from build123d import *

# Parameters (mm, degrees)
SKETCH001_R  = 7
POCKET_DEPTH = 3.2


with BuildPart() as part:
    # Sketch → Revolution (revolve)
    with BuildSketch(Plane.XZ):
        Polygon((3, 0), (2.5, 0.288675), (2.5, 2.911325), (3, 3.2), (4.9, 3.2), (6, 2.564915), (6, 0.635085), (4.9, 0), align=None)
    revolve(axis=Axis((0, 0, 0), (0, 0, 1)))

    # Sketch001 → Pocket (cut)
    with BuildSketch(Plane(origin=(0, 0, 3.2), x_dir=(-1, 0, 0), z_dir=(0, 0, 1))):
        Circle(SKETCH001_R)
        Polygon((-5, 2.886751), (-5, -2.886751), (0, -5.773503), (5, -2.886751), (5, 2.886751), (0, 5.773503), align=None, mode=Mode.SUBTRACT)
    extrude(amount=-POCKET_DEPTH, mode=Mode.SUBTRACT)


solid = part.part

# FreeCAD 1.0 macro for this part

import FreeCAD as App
import Part
import Sketcher
Q = App.Units.Quantity

doc = App.newDocument("Part")
body = doc.addObject("PartDesign::Body", "Body")

# Sketch on XZ plane
sketch1 = body.newObject("Sketcher::SketchObject", "Sketch")
sketch1.AttachmentSupport = (doc.getObject("XZ_Plane"), [""])
sketch1.MapMode = "FlatFace"
sketch1.addGeometry([
    Part.LineSegment(App.Vector(2.5, 0.3, 0), App.Vector(3, 0, 0)),  # 0
    Part.LineSegment(App.Vector(3, 0, 0), App.Vector(4.9, 0, 0)),  # 1
    Part.LineSegment(App.Vector(4.9, 0, 0), App.Vector(6, 0.6, 0)),  # 2
    Part.LineSegment(App.Vector(6, 0.6, 0), App.Vector(6, 2.6, 0)),  # 3
    Part.LineSegment(App.Vector(6, 2.6, 0), App.Vector(4.9, 3.2, 0)),  # 4
    Part.LineSegment(App.Vector(4.9, 3.2, 0), App.Vector(3, 3.2, 0)),  # 5
    Part.LineSegment(App.Vector(3, 3.2, 0), App.Vector(2.5, 2.9, 0)),  # 6
    Part.LineSegment(App.Vector(2.5, 2.9, 0), App.Vector(2.5, 0.3, 0)),  # 7
], False)
sketch1.addConstraint([
    Sketcher.Constraint("Coincident", 0, 2, 1, 1),
    Sketcher.Constraint("Coincident", 1, 2, 2, 1),
    Sketcher.Constraint("Coincident", 2, 2, 3, 1),
    Sketcher.Constraint("Coincident", 3, 2, 4, 1),
    Sketcher.Constraint("Coincident", 4, 2, 5, 1),
    Sketcher.Constraint("Coincident", 5, 2, 6, 1),
    Sketcher.Constraint("Coincident", 6, 2, 7, 1),
    Sketcher.Constraint("Coincident", 7, 2, 0, 1),
    Sketcher.Constraint("Horizontal", 1),
    Sketcher.Constraint("Vertical", 3),
    Sketcher.Constraint("Horizontal", 5),
    Sketcher.Constraint("Vertical", 7),
    Sketcher.Constraint("PointOnObject", 0, 2, -1),
    Sketcher.Constraint("Parallel", 0, 4),
    Sketcher.Constraint("Parallel", 2, 6),
    Sketcher.Constraint("Vertical", 1, 2, 4, 2),
    Sketcher.Constraint("Vertical", 0, 2, 5, 2),
    Sketcher.Constraint("Equal", 2, 4),
    Sketcher.Constraint("Angle", 0, Q("-29.999988 deg")),
    Sketcher.Constraint("DistanceX", 1, 1, 1, 2, Q("1.9 mm")),
    Sketcher.Constraint("DistanceX", -1, 1, 0, 2, Q("3 mm")),
    Sketcher.Constraint("DistanceX", -1, 1, 2, 2, Q("6 mm")),
    Sketcher.Constraint("DistanceY", -1, 1, 4, 2, Q("3.2 mm")),
    Sketcher.Constraint("DistanceX", -1, 1, 6, 2, Q("2.5 mm")),
])
revolution = body.newObject("PartDesign::Revolution", "Revolution")
revolution.Profile = sketch1
revolution.ReferenceAxis = (sketch1, ["V_Axis"])
revolution.Angle = 360

# Sketch on XY plane
sketch2 = body.newObject("Sketcher::SketchObject", "Sketch001")
sketch2.AttachmentSupport = (doc.getObject("XY_Plane"), [""])
sketch2.MapMode = "FlatFace"
sketch2.AttachmentOffset = App.Placement(App.Vector(0, 0, 3.2), App.Rotation())
sketch2.addGeometry([
    Part.Circle(App.Vector(0, 0, 0), App.Vector(0, 0, 1), 7),  # 0
    Part.LineSegment(App.Vector(5, 3, 0), App.Vector(5, -3, 0)),  # 1
    Part.LineSegment(App.Vector(5, -3, 0), App.Vector(0, -6, 0)),  # 2
    Part.LineSegment(App.Vector(0, -6, 0), App.Vector(-5, -3, 0)),  # 3
    Part.LineSegment(App.Vector(-5, -3, 0), App.Vector(-5, 3, 0)),  # 4
    Part.LineSegment(App.Vector(-5, 3, 0), App.Vector(0, 6, 0)),  # 5
    Part.LineSegment(App.Vector(0, 6, 0), App.Vector(5, 3, 0)),  # 6
], False)
sketch2.addConstraint([
    Sketcher.Constraint("Coincident", 1, 2, 2, 1),
    Sketcher.Constraint("Coincident", 2, 2, 3, 1),
    Sketcher.Constraint("Coincident", 3, 2, 4, 1),
    Sketcher.Constraint("Coincident", 4, 2, 5, 1),
    Sketcher.Constraint("Coincident", 5, 2, 6, 1),
    Sketcher.Constraint("Coincident", 6, 2, 1, 1),
    Sketcher.Constraint("Vertical", 1),
    Sketcher.Constraint("Vertical", 4),
    Sketcher.Constraint("Coincident", 0, 3, -1, 1),
    Sketcher.Constraint("Symmetric", 1, 2, 4, 2, -1, 1),
    Sketcher.Constraint("Symmetric", 2, 2, 5, 2, -1, 1),
    Sketcher.Constraint("PointOnObject", 2, 2, -2),
    Sketcher.Constraint("Parallel", 3, 6),
    Sketcher.Constraint("Horizontal", 1, 2, 3, 2),
    Sketcher.Constraint("Diameter", 0, Q("14 mm")),
    Sketcher.Constraint("Angle", 2, Q("-149.999994 deg")),
    Sketcher.Constraint("DistanceX", -1, 1, 1, 2, Q("5 mm")),
    Sketcher.Constraint("DistanceY", 1, 2, 1, 1, Q("5.773502 mm")),
])
pocket1 = body.newObject("PartDesign::Pocket", "Pocket")
pocket1.Profile = sketch2
pocket1.Length = 3.2

doc.recompute()
